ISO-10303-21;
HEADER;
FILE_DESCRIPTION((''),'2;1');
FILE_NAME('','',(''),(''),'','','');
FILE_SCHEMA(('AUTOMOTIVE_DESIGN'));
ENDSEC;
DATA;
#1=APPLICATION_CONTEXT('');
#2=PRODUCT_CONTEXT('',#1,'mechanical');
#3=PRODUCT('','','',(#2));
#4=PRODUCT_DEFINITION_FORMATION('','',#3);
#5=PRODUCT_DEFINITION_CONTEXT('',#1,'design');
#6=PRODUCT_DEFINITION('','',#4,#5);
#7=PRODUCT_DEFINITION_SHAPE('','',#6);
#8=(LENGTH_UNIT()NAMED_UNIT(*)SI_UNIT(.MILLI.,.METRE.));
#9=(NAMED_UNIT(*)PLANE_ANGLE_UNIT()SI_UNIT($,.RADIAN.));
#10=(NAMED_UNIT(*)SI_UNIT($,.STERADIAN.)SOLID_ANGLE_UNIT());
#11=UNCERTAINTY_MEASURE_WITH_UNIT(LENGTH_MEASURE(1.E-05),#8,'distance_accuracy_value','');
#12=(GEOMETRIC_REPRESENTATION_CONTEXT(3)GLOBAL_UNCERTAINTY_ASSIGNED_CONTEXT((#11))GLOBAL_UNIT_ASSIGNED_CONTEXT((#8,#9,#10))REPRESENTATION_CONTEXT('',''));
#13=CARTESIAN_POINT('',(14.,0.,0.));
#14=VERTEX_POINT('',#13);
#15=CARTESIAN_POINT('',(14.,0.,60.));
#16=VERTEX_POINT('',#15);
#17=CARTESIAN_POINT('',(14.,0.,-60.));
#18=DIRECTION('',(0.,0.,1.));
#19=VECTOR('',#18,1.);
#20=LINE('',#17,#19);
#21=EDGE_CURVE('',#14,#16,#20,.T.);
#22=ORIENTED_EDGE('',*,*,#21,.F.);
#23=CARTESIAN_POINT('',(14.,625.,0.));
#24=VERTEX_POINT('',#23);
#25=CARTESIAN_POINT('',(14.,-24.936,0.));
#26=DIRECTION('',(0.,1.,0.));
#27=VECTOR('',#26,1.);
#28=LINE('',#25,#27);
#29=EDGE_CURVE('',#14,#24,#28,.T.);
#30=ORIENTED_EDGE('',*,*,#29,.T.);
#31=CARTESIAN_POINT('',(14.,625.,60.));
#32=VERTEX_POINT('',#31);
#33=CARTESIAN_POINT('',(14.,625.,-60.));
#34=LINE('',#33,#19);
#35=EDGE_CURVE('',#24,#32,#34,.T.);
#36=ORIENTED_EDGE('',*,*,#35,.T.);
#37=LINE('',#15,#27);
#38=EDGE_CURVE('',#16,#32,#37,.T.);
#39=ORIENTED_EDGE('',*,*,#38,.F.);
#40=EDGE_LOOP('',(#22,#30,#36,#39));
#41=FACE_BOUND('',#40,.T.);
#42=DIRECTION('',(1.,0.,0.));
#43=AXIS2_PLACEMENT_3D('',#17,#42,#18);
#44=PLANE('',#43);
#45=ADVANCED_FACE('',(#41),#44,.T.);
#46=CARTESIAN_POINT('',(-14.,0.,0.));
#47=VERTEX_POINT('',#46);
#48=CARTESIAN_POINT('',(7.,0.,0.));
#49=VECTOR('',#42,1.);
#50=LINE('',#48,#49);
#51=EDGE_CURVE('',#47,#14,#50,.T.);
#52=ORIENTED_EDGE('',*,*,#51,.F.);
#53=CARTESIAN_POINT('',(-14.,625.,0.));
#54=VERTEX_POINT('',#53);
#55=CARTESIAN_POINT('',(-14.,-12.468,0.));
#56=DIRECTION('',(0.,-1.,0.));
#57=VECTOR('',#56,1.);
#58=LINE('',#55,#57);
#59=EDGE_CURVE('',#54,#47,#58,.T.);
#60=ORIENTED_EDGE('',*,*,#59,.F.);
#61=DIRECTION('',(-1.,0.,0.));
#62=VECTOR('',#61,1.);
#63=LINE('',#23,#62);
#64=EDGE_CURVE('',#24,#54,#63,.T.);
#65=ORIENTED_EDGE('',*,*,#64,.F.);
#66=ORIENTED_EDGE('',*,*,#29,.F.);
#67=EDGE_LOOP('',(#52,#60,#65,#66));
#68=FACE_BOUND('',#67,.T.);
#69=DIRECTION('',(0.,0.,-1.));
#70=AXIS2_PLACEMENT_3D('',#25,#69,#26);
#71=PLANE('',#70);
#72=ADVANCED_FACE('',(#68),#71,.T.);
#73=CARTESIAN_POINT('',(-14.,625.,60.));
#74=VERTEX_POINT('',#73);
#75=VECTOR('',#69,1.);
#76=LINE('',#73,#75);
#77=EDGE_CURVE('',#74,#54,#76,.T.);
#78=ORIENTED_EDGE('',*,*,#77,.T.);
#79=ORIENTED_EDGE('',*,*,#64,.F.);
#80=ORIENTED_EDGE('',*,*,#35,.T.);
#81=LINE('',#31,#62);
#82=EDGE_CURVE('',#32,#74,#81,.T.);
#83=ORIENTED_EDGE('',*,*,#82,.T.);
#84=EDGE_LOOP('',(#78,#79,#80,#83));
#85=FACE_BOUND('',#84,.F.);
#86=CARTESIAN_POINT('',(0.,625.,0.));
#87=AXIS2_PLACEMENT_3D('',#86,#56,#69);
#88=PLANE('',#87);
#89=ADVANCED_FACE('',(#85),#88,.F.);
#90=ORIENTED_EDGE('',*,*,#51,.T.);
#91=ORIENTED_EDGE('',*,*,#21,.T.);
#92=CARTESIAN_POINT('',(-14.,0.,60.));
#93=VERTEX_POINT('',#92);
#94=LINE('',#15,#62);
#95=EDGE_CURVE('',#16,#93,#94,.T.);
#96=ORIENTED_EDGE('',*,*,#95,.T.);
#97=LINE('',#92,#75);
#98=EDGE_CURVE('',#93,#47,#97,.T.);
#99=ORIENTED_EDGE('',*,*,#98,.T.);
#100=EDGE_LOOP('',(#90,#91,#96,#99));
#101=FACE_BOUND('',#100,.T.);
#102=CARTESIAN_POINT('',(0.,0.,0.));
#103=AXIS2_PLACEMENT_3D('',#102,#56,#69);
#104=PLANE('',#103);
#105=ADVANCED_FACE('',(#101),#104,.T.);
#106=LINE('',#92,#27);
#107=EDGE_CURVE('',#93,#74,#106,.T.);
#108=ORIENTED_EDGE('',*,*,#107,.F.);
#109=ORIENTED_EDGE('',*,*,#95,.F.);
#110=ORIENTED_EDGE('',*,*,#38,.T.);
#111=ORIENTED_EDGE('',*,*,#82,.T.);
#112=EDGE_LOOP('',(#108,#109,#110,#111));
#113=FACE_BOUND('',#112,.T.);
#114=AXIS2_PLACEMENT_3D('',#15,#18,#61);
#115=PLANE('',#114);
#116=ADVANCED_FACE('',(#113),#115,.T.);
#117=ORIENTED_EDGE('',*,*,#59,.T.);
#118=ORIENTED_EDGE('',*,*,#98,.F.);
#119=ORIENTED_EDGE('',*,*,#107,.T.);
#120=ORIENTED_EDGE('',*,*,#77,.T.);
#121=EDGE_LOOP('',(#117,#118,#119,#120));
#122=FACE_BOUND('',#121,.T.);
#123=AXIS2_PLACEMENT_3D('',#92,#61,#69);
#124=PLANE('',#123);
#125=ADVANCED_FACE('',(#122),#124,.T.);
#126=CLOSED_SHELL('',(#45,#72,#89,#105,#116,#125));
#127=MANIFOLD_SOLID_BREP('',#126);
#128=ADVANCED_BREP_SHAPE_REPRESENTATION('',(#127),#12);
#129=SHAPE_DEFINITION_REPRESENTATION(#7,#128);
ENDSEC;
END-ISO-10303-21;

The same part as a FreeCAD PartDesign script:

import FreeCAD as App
import Part
import Sketcher

V = App.Vector
Q = App.Units.Quantity


def add_polygon(sketch, points):
    """Adds a closed chain of lines whose ends are joined by coincident constraints."""
    first, n = sketch.GeometryCount, len(points)
    for a, b in zip(points, points[1:] + points[:1]):
        sketch.addGeometry(Part.LineSegment(App.Vector(*a, 0), App.Vector(*b, 0)), False)
    for i in range(n):
        sketch.addConstraint(Sketcher.Constraint("Coincident", first + i, 2, first + (i + 1) % n, 1))

doc = App.newDocument("Part")
params = doc.addObject("Spreadsheet::Sheet", "Params")
for row, (alias, value) in enumerate([
    ("sketch1_width", "28 mm"),
    ("sketch1_height", "120 mm"),
    ("pad1_length", "625 mm"),
    ("sketch2_height", "60 mm"),
    ("pocket1_length", "125.4836 mm"),
], start=1):
    params.set(f"A{row}", alias)
    params.set(f"B{row}", "=" + value)
    params.setAlias(f"B{row}", alias)

body = doc.addObject("PartDesign::Body", "Body")

# Sketch on XZ plane
sketch1 = doc.addObject("Sketcher::SketchObject", "Sketch")
body.addObject(sketch1)
sketch1.AttachmentSupport = (doc.XZ_Plane, [""])
sketch1.MapMode = "FlatFace"
add_polygon(sketch1, [(-14, 60), (-14, -60), (14, -60), (14, 60)])  # lines 0-3
sketch1.addConstraint([
    Sketcher.Constraint("Vertical", 0),
    Sketcher.Constraint("Horizontal", 1),
    Sketcher.Constraint("Vertical", 2),
    Sketcher.Constraint("Horizontal", 3),
    Sketcher.Constraint("Symmetric", 0, 2, 2, 2, -1, 1),
    Sketcher.Constraint("DistanceX", 1, 1, 1, 2, Q("28 mm")),
    Sketcher.Constraint("DistanceY", 0, 2, 0, 1, Q("120 mm")),
])
sketch1.setExpression("Constraints[9]", "Params.sketch1_width")
sketch1.setExpression("Constraints[10]", "Params.sketch1_height")
pad1 = doc.addObject("PartDesign::Pad", "Pad")
body.addObject(pad1)
pad1.Profile = sketch1
pad1.setExpression("Length", "Params.pad1_length")
pad1.Reversed = True

# Sketch on YZ plane
sketch2 = doc.addObject("Sketcher::SketchObject", "Sketch001")
body.addObject(sketch2)
sketch2.AttachmentSupport = (doc.YZ_Plane, [""])
sketch2.MapMode = "FlatFace"
sketch2.AttachmentOffset = App.Placement(V(0, 0, 14), App.Rotation())
add_polygon(sketch2, [(-25, -60), (625, -60), (625, 0), (-25, 0)])  # lines 0-3
sketch2.addConstraint([
    Sketcher.Constraint("Horizontal", 0),
    Sketcher.Constraint("Vertical", 1),
    Sketcher.Constraint("Horizontal", 2),
    Sketcher.Constraint("Vertical", 3),
    Sketcher.Constraint("PointOnObject", 1, 2, -1),
    Sketcher.Constraint("DistanceY", 1, 1, 1, 2, Q("60 mm")),
    Sketcher.Constraint("DistanceX", -1, 1, 0, 2, Q("625 mm")),
    Sketcher.Constraint("DistanceX", 0, 1, 0, 2, Q("649.936 mm")),
])
sketch2.setExpression("Constraints[9]", "Params.sketch2_height")
pocket1 = doc.addObject("PartDesign::Pocket", "Pocket")
body.addObject(pocket1)
pocket1.Profile = sketch2
pocket1.setExpression("Length", "Params.pocket1_length")

doc.recompute()
